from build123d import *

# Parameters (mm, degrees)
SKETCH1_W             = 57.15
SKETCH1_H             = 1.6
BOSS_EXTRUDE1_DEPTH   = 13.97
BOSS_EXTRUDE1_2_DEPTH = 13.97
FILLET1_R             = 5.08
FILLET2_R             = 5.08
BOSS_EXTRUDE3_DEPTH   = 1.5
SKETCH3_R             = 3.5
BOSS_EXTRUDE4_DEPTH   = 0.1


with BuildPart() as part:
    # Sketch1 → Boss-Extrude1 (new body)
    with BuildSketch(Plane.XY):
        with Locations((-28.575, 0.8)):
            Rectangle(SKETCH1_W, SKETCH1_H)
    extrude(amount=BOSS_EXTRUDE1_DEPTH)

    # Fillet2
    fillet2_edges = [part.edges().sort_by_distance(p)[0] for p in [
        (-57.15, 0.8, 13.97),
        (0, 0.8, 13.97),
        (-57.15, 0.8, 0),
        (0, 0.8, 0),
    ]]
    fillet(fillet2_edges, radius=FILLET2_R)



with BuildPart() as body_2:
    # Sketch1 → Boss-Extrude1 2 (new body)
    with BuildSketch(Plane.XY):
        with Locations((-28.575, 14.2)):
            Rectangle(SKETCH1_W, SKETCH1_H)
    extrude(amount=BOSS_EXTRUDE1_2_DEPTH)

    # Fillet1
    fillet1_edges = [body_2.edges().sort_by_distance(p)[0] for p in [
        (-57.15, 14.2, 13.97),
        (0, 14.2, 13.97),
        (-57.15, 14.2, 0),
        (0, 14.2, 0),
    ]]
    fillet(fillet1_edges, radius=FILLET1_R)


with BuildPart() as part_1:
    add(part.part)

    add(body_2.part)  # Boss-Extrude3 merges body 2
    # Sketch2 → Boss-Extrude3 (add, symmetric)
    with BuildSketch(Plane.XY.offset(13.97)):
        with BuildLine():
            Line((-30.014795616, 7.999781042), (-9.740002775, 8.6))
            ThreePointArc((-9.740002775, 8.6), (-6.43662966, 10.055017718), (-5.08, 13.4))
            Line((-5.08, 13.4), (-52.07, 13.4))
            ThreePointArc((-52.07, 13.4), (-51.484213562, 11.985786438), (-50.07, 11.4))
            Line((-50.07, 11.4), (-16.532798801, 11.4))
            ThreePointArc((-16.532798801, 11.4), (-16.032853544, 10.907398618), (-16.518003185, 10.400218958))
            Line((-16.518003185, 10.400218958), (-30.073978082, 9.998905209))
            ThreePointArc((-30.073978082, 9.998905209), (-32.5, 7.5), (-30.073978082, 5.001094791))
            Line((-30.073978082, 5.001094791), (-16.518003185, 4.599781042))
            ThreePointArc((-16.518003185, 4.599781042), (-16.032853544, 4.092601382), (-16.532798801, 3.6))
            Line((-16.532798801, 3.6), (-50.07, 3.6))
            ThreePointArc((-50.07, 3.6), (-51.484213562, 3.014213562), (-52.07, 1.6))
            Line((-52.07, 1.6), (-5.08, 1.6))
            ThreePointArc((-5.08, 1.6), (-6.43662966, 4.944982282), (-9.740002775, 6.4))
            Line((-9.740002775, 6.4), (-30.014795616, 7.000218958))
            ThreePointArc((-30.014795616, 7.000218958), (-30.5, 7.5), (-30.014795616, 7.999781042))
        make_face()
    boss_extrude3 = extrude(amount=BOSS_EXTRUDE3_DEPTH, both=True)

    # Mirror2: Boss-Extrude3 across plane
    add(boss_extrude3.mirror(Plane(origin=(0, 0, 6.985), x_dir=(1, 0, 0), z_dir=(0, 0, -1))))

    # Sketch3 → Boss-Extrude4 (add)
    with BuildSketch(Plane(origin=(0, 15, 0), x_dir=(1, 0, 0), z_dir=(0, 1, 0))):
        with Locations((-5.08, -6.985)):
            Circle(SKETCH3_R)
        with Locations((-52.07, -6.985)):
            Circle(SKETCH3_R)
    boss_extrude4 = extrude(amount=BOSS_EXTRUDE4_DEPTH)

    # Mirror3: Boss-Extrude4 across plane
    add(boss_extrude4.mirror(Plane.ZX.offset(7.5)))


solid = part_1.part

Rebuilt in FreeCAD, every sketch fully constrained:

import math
import FreeCAD as App
import Part
import Sketcher


def edges_at(feature, points):
    """Names of the edges that pass closest to the given points."""
    edges = feature.Shape.Edges
    near = lambda p: min(range(len(edges)), key=lambda i: edges[i].distToShape(Part.Vertex(*p))[0])
    return sorted({f"Edge{near(p) + 1}" for p in points})


def add_polygon(sketch, points):
    """Adds a closed chain of lines whose ends are joined by coincident constraints."""
    first, n = sketch.GeometryCount, len(points)
    for a, b in zip(points, points[1:] + points[:1]):
        sketch.addGeometry(Part.LineSegment(App.Vector(*a, 0), App.Vector(*b, 0)), False)
    for i in range(n):
        sketch.addConstraint(Sketcher.Constraint("Coincident", first + i, 2, first + (i + 1) % n, 1))

doc = App.newDocument("Part")
body = doc.addObject("PartDesign::Body", "Body")

sketch1 = body.newObject("Sketcher::SketchObject", "Sketch")
sketch1.AttachmentSupport = (doc.getObject("XY_Plane"), [""])
sketch1.MapMode = "FlatFace"
add_polygon(sketch1, [(-57.15, 1.6), (-57.15, 0), (0, 0), (0, 1.6)])
sketch1.addConstraint([
    Sketcher.Constraint("Vertical", 0),
    Sketcher.Constraint("Horizontal", 1),
    Sketcher.Constraint("Vertical", 2),
    Sketcher.Constraint("Horizontal", 3),
    Sketcher.Constraint("Coincident", 1, 2, -1, 1),
    Sketcher.Constraint("DistanceY", 0, 2, 0, 1, 1.6),
    Sketcher.Constraint("DistanceX", 1, 1, 1, 2, 57.15),
])
pad1 = body.newObject("PartDesign::Pad", "Pad")
pad1.Profile = sketch1
pad1.Length = 13.97
doc.recompute()

fillet = body.newObject("PartDesign::Fillet", "Fillet")
fillet.Base = (pad1, edges_at(pad1, [
    (-57.15, 0.8, 13.97),
    (0, 0.8, 13.97),
    (-57.15, 0.8, 0),
    (0, 0.8, 0),
]))
fillet.Radius = 5.08
body2 = doc.addObject("PartDesign::Body", "Body001")

sketch2 = body2.newObject("Sketcher::SketchObject", "Sketch001")
sketch2.AttachmentSupport = (doc.getObject("XY_Plane001"), [""])
sketch2.MapMode = "FlatFace"
add_polygon(sketch2, [(-57.15, 15), (-57.15, 13.4), (0, 13.4), (0, 15)])
sketch2.addConstraint([
    Sketcher.Constraint("Vertical", 0),
    Sketcher.Constraint("Horizontal", 1),
    Sketcher.Constraint("Vertical", 2),
    Sketcher.Constraint("Horizontal", 3),
    Sketcher.Constraint("PointOnObject", 1, 2, -2),
    Sketcher.Constraint("DistanceY", 0, 2, 0, 1, 1.6),
    Sketcher.Constraint("DistanceY", -1, 1, 2, 2, 15.0),
    Sketcher.Constraint("DistanceX", 1, 1, 1, 2, 57.15),
])
pad2 = body2.newObject("PartDesign::Pad", "Pad001")
pad2.Profile = sketch2
pad2.Length = 13.97
doc.recompute()

fillet2 = body2.newObject("PartDesign::Fillet", "Fillet001")
fillet2.Base = (pad2, edges_at(pad2, [
    (-57.15, 14.2, 13.97),
    (0, 14.2, 13.97),
    (-57.15, 14.2, 0),
    (0, 14.2, 0),
]))
fillet2.Radius = 5.08
body.AllowCompound = True
doc.recompute()

boolean = body.newObject("PartDesign::Boolean", "Boolean")
boolean.Type = "Fuse"
boolean.addObjects([body2])

sketch3 = body.newObject("Sketcher::SketchObject", "Sketch002")
sketch3.AttachmentSupport = (doc.getObject("XY_Plane"), [""])
sketch3.MapMode = "FlatFace"
sketch3.AttachmentOffset = App.Placement(App.Vector(0, 0, 13.97), App.Rotation())
sketch3.addGeometry([
    Part.LineSegment(App.Vector(-30.014796, 7.999781, 0), App.Vector(-9.740003, 8.6, 0)),
    Part.ArcOfCircle(Part.Circle(App.Vector(-9.882103, 13.4, 0), App.Vector(0, 0, 1), 4.802103), math.radians(-88.3043), math.radians(0)),
    Part.LineSegment(App.Vector(-5.08, 13.4, 0), App.Vector(-52.07, 13.4, 0)),
    Part.ArcOfCircle(Part.Circle(App.Vector(-50.07, 13.4, 0), App.Vector(0, 0, 1), 2), math.radians(-180), math.radians(-90)),
    Part.LineSegment(App.Vector(-50.07, 11.4, 0), App.Vector(-16.532799, 11.4, 0)),
    Part.ArcOfCircle(Part.Circle(App.Vector(-16.532799, 10.9, 0), App.Vector(0, 0, 1), 0.5), math.radians(-88.3043), math.radians(90)),
    Part.LineSegment(App.Vector(-16.518003, 10.400219, 0), App.Vector(-30.073978, 9.998905, 0)),
    Part.ArcOfCircle(Part.Circle(App.Vector(-30, 7.5, 0), App.Vector(0, 0, 1), 2.5), math.radians(91.6957), math.radians(268.3043)),
    Part.LineSegment(App.Vector(-30.073978, 5.001095, 0), App.Vector(-16.518003, 4.599781, 0)),
    Part.ArcOfCircle(Part.Circle(App.Vector(-16.532799, 4.1, 0), App.Vector(0, 0, 1), 0.5), math.radians(-90), math.radians(88.3043)),
    Part.LineSegment(App.Vector(-16.532799, 3.6, 0), App.Vector(-50.07, 3.6, 0)),
    Part.ArcOfCircle(Part.Circle(App.Vector(-50.07, 1.6, 0), App.Vector(0, 0, 1), 2), math.radians(90), math.radians(180)),
    Part.LineSegment(App.Vector(-52.07, 1.6, 0), App.Vector(-5.08, 1.6, 0)),
    Part.ArcOfCircle(Part.Circle(App.Vector(-9.882103, 1.6, 0), App.Vector(0, 0, 1), 4.802103), math.radians(0), math.radians(88.3043)),
    Part.LineSegment(App.Vector(-9.740003, 6.4, 0), App.Vector(-30.014796, 7.000219, 0)),
    Part.ArcOfCircle(Part.Circle(App.Vector(-30, 7.5, 0), App.Vector(0, 0, 1), 0.5), math.radians(91.6957), math.radians(268.3043)),
], False)
sketch3.addConstraint([
    Sketcher.Constraint("Tangent", 0, 2, 1, 1),
    Sketcher.Constraint("Coincident", 1, 2, 2, 1),
    Sketcher.Constraint("Coincident", 2, 2, 3, 1),
    Sketcher.Constraint("Tangent", 3, 2, 4, 1),
    Sketcher.Constraint("Tangent", 4, 2, 5, 2),
    Sketcher.Constraint("Tangent", 5, 1, 6, 1),
    Sketcher.Constraint("Tangent", 6, 2, 7, 1),
    Sketcher.Constraint("Tangent", 7, 2, 8, 1),
    Sketcher.Constraint("Tangent", 8, 2, 9, 2),
    Sketcher.Constraint("Tangent", 9, 1, 10, 1),
    Sketcher.Constraint("Tangent", 10, 2, 11, 1),
    Sketcher.Constraint("Coincident", 11, 2, 12, 1),
    Sketcher.Constraint("Coincident", 12, 2, 13, 1),
    Sketcher.Constraint("Tangent", 13, 2, 14, 1),
    Sketcher.Constraint("Tangent", 14, 2, 15, 2),
    Sketcher.Constraint("Tangent", 15, 1, 0, 1),
    Sketcher.Constraint("Horizontal", 2),
    Sketcher.Constraint("Horizontal", 4),
    Sketcher.Constraint("Horizontal", 10),
    Sketcher.Constraint("Horizontal", 12),
    Sketcher.Constraint("Coincident", 15, 3, 7, 3),
    Sketcher.Constraint("Equal", 5, 9),
    Sketcher.Constraint("Equal", 3, 11),
    Sketcher.Constraint("Equal", 1, 13),
    Sketcher.Constraint("Equal", 9, 15),
    Sketcher.Constraint("Parallel", 0, 6),
    Sketcher.Constraint("Parallel", 8, 14),
    Sketcher.Constraint("Horizontal", 1, 3, 3, 3),
    Sketcher.Constraint("Horizontal", 11, 3, 13, 3),
    Sketcher.Constraint("Horizontal", 3, 3, 1, 2),
    Sketcher.Constraint("Horizontal", 13, 3, 11, 2),
    Sketcher.Constraint("Vertical", 5, 3, 9, 3),
    Sketcher.Constraint("Vertical", 3, 3, 11, 3),
    Sketcher.Constraint("Vertical", 1, 3, 13, 3),
    Sketcher.Constraint("Radius", 3, 2.0),
    Sketcher.Constraint("Radius", 5, 0.5),
    Sketcher.Constraint("Radius", 7, 2.5),
    Sketcher.Constraint("DistanceX", 7, 3, -1, 1, 30.0),
    Sketcher.Constraint("DistanceY", 13, 3, 0, 2, 7.0),
    Sketcher.Constraint("DistanceX", 2, 2, 2, 1, 46.99),
    Sketcher.Constraint("DistanceY", -1, 1, 1, 3, 13.4),
    Sketcher.Constraint("DistanceY", -1, 1, 7, 3, 7.5),
    Sketcher.Constraint("DistanceX", 3, 3, -1, 1, 50.07),
])
pad3 = body.newObject("PartDesign::Pad", "Pad002")
pad3.Profile = sketch3
pad3.Length = 3
pad3.Midplane = True
doc.recompute()

datumplane = body.newObject("PartDesign::Plane", "DatumPlane")
datumplane.AttachmentSupport = (doc.getObject("XY_Plane"), [""])
datumplane.MapMode = "FlatFace"
datumplane.AttachmentOffset = App.Placement(App.Vector(0, 0, 6.985), App.Rotation())
mirrored = body.newObject("PartDesign::Mirrored", "Mirrored")
mirrored.Originals = [pad3]
mirrored.MirrorPlane = (datumplane, [""])
body.Tip = mirrored

sketch4 = body.newObject("Sketcher::SketchObject", "Sketch003")
sketch4.AttachmentSupport = (doc.getObject("XZ_Plane"), [""])
sketch4.MapMode = "FlatFace"
sketch4.AttachmentOffset = App.Placement(App.Vector(0, 0, -15), App.Rotation())
sketch4.addGeometry([
    Part.Circle(App.Vector(-5.08, 6.985, 0), App.Vector(0, 0, 1), 3.5),
    Part.Circle(App.Vector(-52.07, 6.985, 0), App.Vector(0, 0, 1), 3.5),
], False)
sketch4.addConstraint([
    Sketcher.Constraint("Equal", 0, 1),
    Sketcher.Constraint("Horizontal", 0, 3, 1, 3),
    Sketcher.Constraint("Diameter", 0, 7.0),
    Sketcher.Constraint("DistanceX", 0, 3, -1, 1, 5.08),
    Sketcher.Constraint("DistanceX", 1, 3, -1, 1, 52.07),
    Sketcher.Constraint("DistanceY", -1, 1, 0, 3, 6.985),
])
pad4 = body.newObject("PartDesign::Pad", "Pad003")
pad4.Profile = sketch4
pad4.Length = 0.1
pad4.Reversed = True
doc.recompute()

datumplane2 = body.newObject("PartDesign::Plane", "DatumPlane001")
datumplane2.AttachmentSupport = (doc.getObject("XZ_Plane"), [""])
datumplane2.MapMode = "FlatFace"
datumplane2.AttachmentOffset = App.Placement(App.Vector(0, 0, -7.5), App.Rotation())
mirrored2 = body.newObject("PartDesign::Mirrored", "Mirrored001")
mirrored2.Originals = [pad4]
mirrored2.MirrorPlane = (datumplane2, [""])
body.Tip = mirrored2

doc.recompute()
